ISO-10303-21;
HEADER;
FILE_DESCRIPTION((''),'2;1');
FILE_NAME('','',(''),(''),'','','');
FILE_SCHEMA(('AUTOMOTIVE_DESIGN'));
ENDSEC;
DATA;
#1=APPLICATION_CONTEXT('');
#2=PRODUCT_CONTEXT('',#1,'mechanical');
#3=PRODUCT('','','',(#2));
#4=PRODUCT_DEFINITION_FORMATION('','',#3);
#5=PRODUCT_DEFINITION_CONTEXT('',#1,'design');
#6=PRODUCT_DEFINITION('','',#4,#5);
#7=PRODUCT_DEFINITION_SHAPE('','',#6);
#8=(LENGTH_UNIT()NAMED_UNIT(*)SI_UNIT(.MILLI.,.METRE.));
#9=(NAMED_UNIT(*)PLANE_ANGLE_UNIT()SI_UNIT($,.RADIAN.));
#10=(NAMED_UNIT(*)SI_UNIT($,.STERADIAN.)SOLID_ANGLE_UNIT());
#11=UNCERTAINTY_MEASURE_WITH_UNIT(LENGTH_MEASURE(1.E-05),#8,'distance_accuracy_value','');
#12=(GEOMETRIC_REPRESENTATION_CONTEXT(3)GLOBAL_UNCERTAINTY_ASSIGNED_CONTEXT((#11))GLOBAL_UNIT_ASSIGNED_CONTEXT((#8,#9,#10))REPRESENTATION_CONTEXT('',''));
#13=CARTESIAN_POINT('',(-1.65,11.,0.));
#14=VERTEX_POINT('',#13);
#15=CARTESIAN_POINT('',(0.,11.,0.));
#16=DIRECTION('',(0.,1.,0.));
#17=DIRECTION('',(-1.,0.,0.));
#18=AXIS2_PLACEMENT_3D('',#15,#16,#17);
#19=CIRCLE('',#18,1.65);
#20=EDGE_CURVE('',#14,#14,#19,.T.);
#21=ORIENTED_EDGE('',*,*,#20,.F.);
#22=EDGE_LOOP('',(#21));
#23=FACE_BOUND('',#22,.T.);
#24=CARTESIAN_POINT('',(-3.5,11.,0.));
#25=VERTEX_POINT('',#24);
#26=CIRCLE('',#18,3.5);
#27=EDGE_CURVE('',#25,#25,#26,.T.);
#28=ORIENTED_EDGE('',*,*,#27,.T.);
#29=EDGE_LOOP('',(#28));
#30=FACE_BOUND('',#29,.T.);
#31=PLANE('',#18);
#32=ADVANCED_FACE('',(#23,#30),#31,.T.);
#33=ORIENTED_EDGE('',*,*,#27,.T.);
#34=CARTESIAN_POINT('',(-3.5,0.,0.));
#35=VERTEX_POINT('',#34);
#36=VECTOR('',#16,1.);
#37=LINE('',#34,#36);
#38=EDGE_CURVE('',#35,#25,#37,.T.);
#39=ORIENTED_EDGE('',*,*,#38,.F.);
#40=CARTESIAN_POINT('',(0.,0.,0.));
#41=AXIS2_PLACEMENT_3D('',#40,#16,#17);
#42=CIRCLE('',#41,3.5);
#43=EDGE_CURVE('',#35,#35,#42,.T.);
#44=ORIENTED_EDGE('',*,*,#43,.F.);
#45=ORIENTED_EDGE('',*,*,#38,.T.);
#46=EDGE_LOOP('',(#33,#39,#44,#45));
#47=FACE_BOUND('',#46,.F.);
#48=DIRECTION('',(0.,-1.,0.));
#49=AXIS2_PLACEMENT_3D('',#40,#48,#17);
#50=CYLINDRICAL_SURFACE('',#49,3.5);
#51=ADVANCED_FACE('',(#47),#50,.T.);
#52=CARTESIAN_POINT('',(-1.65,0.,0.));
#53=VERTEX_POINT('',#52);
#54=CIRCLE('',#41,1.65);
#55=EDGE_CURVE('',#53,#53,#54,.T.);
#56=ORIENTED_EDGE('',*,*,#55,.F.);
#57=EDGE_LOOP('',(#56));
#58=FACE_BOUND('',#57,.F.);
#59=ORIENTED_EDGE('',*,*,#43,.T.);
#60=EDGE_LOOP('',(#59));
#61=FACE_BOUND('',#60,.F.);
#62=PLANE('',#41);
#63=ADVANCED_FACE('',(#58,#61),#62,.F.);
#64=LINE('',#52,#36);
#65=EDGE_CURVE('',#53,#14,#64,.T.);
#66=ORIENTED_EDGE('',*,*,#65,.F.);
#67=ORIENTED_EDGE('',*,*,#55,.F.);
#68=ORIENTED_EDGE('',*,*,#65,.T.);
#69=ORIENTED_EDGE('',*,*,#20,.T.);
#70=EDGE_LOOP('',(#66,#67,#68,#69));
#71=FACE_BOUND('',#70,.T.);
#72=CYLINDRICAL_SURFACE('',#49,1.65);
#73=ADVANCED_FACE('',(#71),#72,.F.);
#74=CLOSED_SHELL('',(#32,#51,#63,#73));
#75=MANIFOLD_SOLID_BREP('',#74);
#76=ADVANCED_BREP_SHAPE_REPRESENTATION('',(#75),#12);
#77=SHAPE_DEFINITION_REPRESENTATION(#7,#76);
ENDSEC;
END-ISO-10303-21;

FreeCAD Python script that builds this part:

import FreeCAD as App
import Part
import Sketcher
Q = App.Units.Quantity

doc = App.newDocument("Part")
params = doc.addObject("Spreadsheet::Sheet", "Params")
for row, (alias, value) in enumerate([
    ("sketch1_diameter", "7 mm"),
    ("sketch1_diameter2", "3.3 mm"),
    ("pad1_length", "11 mm"),
], start=1):
    params.set(f"A{row}", alias)
    params.set(f"B{row}", "=" + value)
    params.setAlias(f"B{row}", alias)

body = doc.addObject("PartDesign::Body", "Body")

# Sketch on XZ plane
sketch1 = body.newObject("Sketcher::SketchObject", "Sketch")
sketch1.AttachmentSupport = (doc.getObject("XZ_Plane"), [""])
sketch1.MapMode = "FlatFace"
sketch1.addGeometry([
    Part.Circle(App.Vector(0, 0, 0), App.Vector(0, 0, 1), 3.5),
    Part.Circle(App.Vector(0, 0, 0), App.Vector(0, 0, 1), 1.65),
], False)
sketch1.addConstraint([
    Sketcher.Constraint("Coincident", 0, 3, -1, 1),
    Sketcher.Constraint("Coincident", 1, 3, -1, 1),
    Sketcher.Constraint("Diameter", 0, Q("7 mm")),
    Sketcher.Constraint("Diameter", 1, Q("3.3 mm")),
])
sketch1.setExpression("Constraints[2]", "Params.sketch1_diameter")
sketch1.setExpression("Constraints[3]", "Params.sketch1_diameter2")
pad1 = body.newObject("PartDesign::Pad", "Pad")
pad1.Profile = sketch1
pad1.setExpression("Length", "Params.pad1_length")
pad1.Reversed = True

doc.recompute()
